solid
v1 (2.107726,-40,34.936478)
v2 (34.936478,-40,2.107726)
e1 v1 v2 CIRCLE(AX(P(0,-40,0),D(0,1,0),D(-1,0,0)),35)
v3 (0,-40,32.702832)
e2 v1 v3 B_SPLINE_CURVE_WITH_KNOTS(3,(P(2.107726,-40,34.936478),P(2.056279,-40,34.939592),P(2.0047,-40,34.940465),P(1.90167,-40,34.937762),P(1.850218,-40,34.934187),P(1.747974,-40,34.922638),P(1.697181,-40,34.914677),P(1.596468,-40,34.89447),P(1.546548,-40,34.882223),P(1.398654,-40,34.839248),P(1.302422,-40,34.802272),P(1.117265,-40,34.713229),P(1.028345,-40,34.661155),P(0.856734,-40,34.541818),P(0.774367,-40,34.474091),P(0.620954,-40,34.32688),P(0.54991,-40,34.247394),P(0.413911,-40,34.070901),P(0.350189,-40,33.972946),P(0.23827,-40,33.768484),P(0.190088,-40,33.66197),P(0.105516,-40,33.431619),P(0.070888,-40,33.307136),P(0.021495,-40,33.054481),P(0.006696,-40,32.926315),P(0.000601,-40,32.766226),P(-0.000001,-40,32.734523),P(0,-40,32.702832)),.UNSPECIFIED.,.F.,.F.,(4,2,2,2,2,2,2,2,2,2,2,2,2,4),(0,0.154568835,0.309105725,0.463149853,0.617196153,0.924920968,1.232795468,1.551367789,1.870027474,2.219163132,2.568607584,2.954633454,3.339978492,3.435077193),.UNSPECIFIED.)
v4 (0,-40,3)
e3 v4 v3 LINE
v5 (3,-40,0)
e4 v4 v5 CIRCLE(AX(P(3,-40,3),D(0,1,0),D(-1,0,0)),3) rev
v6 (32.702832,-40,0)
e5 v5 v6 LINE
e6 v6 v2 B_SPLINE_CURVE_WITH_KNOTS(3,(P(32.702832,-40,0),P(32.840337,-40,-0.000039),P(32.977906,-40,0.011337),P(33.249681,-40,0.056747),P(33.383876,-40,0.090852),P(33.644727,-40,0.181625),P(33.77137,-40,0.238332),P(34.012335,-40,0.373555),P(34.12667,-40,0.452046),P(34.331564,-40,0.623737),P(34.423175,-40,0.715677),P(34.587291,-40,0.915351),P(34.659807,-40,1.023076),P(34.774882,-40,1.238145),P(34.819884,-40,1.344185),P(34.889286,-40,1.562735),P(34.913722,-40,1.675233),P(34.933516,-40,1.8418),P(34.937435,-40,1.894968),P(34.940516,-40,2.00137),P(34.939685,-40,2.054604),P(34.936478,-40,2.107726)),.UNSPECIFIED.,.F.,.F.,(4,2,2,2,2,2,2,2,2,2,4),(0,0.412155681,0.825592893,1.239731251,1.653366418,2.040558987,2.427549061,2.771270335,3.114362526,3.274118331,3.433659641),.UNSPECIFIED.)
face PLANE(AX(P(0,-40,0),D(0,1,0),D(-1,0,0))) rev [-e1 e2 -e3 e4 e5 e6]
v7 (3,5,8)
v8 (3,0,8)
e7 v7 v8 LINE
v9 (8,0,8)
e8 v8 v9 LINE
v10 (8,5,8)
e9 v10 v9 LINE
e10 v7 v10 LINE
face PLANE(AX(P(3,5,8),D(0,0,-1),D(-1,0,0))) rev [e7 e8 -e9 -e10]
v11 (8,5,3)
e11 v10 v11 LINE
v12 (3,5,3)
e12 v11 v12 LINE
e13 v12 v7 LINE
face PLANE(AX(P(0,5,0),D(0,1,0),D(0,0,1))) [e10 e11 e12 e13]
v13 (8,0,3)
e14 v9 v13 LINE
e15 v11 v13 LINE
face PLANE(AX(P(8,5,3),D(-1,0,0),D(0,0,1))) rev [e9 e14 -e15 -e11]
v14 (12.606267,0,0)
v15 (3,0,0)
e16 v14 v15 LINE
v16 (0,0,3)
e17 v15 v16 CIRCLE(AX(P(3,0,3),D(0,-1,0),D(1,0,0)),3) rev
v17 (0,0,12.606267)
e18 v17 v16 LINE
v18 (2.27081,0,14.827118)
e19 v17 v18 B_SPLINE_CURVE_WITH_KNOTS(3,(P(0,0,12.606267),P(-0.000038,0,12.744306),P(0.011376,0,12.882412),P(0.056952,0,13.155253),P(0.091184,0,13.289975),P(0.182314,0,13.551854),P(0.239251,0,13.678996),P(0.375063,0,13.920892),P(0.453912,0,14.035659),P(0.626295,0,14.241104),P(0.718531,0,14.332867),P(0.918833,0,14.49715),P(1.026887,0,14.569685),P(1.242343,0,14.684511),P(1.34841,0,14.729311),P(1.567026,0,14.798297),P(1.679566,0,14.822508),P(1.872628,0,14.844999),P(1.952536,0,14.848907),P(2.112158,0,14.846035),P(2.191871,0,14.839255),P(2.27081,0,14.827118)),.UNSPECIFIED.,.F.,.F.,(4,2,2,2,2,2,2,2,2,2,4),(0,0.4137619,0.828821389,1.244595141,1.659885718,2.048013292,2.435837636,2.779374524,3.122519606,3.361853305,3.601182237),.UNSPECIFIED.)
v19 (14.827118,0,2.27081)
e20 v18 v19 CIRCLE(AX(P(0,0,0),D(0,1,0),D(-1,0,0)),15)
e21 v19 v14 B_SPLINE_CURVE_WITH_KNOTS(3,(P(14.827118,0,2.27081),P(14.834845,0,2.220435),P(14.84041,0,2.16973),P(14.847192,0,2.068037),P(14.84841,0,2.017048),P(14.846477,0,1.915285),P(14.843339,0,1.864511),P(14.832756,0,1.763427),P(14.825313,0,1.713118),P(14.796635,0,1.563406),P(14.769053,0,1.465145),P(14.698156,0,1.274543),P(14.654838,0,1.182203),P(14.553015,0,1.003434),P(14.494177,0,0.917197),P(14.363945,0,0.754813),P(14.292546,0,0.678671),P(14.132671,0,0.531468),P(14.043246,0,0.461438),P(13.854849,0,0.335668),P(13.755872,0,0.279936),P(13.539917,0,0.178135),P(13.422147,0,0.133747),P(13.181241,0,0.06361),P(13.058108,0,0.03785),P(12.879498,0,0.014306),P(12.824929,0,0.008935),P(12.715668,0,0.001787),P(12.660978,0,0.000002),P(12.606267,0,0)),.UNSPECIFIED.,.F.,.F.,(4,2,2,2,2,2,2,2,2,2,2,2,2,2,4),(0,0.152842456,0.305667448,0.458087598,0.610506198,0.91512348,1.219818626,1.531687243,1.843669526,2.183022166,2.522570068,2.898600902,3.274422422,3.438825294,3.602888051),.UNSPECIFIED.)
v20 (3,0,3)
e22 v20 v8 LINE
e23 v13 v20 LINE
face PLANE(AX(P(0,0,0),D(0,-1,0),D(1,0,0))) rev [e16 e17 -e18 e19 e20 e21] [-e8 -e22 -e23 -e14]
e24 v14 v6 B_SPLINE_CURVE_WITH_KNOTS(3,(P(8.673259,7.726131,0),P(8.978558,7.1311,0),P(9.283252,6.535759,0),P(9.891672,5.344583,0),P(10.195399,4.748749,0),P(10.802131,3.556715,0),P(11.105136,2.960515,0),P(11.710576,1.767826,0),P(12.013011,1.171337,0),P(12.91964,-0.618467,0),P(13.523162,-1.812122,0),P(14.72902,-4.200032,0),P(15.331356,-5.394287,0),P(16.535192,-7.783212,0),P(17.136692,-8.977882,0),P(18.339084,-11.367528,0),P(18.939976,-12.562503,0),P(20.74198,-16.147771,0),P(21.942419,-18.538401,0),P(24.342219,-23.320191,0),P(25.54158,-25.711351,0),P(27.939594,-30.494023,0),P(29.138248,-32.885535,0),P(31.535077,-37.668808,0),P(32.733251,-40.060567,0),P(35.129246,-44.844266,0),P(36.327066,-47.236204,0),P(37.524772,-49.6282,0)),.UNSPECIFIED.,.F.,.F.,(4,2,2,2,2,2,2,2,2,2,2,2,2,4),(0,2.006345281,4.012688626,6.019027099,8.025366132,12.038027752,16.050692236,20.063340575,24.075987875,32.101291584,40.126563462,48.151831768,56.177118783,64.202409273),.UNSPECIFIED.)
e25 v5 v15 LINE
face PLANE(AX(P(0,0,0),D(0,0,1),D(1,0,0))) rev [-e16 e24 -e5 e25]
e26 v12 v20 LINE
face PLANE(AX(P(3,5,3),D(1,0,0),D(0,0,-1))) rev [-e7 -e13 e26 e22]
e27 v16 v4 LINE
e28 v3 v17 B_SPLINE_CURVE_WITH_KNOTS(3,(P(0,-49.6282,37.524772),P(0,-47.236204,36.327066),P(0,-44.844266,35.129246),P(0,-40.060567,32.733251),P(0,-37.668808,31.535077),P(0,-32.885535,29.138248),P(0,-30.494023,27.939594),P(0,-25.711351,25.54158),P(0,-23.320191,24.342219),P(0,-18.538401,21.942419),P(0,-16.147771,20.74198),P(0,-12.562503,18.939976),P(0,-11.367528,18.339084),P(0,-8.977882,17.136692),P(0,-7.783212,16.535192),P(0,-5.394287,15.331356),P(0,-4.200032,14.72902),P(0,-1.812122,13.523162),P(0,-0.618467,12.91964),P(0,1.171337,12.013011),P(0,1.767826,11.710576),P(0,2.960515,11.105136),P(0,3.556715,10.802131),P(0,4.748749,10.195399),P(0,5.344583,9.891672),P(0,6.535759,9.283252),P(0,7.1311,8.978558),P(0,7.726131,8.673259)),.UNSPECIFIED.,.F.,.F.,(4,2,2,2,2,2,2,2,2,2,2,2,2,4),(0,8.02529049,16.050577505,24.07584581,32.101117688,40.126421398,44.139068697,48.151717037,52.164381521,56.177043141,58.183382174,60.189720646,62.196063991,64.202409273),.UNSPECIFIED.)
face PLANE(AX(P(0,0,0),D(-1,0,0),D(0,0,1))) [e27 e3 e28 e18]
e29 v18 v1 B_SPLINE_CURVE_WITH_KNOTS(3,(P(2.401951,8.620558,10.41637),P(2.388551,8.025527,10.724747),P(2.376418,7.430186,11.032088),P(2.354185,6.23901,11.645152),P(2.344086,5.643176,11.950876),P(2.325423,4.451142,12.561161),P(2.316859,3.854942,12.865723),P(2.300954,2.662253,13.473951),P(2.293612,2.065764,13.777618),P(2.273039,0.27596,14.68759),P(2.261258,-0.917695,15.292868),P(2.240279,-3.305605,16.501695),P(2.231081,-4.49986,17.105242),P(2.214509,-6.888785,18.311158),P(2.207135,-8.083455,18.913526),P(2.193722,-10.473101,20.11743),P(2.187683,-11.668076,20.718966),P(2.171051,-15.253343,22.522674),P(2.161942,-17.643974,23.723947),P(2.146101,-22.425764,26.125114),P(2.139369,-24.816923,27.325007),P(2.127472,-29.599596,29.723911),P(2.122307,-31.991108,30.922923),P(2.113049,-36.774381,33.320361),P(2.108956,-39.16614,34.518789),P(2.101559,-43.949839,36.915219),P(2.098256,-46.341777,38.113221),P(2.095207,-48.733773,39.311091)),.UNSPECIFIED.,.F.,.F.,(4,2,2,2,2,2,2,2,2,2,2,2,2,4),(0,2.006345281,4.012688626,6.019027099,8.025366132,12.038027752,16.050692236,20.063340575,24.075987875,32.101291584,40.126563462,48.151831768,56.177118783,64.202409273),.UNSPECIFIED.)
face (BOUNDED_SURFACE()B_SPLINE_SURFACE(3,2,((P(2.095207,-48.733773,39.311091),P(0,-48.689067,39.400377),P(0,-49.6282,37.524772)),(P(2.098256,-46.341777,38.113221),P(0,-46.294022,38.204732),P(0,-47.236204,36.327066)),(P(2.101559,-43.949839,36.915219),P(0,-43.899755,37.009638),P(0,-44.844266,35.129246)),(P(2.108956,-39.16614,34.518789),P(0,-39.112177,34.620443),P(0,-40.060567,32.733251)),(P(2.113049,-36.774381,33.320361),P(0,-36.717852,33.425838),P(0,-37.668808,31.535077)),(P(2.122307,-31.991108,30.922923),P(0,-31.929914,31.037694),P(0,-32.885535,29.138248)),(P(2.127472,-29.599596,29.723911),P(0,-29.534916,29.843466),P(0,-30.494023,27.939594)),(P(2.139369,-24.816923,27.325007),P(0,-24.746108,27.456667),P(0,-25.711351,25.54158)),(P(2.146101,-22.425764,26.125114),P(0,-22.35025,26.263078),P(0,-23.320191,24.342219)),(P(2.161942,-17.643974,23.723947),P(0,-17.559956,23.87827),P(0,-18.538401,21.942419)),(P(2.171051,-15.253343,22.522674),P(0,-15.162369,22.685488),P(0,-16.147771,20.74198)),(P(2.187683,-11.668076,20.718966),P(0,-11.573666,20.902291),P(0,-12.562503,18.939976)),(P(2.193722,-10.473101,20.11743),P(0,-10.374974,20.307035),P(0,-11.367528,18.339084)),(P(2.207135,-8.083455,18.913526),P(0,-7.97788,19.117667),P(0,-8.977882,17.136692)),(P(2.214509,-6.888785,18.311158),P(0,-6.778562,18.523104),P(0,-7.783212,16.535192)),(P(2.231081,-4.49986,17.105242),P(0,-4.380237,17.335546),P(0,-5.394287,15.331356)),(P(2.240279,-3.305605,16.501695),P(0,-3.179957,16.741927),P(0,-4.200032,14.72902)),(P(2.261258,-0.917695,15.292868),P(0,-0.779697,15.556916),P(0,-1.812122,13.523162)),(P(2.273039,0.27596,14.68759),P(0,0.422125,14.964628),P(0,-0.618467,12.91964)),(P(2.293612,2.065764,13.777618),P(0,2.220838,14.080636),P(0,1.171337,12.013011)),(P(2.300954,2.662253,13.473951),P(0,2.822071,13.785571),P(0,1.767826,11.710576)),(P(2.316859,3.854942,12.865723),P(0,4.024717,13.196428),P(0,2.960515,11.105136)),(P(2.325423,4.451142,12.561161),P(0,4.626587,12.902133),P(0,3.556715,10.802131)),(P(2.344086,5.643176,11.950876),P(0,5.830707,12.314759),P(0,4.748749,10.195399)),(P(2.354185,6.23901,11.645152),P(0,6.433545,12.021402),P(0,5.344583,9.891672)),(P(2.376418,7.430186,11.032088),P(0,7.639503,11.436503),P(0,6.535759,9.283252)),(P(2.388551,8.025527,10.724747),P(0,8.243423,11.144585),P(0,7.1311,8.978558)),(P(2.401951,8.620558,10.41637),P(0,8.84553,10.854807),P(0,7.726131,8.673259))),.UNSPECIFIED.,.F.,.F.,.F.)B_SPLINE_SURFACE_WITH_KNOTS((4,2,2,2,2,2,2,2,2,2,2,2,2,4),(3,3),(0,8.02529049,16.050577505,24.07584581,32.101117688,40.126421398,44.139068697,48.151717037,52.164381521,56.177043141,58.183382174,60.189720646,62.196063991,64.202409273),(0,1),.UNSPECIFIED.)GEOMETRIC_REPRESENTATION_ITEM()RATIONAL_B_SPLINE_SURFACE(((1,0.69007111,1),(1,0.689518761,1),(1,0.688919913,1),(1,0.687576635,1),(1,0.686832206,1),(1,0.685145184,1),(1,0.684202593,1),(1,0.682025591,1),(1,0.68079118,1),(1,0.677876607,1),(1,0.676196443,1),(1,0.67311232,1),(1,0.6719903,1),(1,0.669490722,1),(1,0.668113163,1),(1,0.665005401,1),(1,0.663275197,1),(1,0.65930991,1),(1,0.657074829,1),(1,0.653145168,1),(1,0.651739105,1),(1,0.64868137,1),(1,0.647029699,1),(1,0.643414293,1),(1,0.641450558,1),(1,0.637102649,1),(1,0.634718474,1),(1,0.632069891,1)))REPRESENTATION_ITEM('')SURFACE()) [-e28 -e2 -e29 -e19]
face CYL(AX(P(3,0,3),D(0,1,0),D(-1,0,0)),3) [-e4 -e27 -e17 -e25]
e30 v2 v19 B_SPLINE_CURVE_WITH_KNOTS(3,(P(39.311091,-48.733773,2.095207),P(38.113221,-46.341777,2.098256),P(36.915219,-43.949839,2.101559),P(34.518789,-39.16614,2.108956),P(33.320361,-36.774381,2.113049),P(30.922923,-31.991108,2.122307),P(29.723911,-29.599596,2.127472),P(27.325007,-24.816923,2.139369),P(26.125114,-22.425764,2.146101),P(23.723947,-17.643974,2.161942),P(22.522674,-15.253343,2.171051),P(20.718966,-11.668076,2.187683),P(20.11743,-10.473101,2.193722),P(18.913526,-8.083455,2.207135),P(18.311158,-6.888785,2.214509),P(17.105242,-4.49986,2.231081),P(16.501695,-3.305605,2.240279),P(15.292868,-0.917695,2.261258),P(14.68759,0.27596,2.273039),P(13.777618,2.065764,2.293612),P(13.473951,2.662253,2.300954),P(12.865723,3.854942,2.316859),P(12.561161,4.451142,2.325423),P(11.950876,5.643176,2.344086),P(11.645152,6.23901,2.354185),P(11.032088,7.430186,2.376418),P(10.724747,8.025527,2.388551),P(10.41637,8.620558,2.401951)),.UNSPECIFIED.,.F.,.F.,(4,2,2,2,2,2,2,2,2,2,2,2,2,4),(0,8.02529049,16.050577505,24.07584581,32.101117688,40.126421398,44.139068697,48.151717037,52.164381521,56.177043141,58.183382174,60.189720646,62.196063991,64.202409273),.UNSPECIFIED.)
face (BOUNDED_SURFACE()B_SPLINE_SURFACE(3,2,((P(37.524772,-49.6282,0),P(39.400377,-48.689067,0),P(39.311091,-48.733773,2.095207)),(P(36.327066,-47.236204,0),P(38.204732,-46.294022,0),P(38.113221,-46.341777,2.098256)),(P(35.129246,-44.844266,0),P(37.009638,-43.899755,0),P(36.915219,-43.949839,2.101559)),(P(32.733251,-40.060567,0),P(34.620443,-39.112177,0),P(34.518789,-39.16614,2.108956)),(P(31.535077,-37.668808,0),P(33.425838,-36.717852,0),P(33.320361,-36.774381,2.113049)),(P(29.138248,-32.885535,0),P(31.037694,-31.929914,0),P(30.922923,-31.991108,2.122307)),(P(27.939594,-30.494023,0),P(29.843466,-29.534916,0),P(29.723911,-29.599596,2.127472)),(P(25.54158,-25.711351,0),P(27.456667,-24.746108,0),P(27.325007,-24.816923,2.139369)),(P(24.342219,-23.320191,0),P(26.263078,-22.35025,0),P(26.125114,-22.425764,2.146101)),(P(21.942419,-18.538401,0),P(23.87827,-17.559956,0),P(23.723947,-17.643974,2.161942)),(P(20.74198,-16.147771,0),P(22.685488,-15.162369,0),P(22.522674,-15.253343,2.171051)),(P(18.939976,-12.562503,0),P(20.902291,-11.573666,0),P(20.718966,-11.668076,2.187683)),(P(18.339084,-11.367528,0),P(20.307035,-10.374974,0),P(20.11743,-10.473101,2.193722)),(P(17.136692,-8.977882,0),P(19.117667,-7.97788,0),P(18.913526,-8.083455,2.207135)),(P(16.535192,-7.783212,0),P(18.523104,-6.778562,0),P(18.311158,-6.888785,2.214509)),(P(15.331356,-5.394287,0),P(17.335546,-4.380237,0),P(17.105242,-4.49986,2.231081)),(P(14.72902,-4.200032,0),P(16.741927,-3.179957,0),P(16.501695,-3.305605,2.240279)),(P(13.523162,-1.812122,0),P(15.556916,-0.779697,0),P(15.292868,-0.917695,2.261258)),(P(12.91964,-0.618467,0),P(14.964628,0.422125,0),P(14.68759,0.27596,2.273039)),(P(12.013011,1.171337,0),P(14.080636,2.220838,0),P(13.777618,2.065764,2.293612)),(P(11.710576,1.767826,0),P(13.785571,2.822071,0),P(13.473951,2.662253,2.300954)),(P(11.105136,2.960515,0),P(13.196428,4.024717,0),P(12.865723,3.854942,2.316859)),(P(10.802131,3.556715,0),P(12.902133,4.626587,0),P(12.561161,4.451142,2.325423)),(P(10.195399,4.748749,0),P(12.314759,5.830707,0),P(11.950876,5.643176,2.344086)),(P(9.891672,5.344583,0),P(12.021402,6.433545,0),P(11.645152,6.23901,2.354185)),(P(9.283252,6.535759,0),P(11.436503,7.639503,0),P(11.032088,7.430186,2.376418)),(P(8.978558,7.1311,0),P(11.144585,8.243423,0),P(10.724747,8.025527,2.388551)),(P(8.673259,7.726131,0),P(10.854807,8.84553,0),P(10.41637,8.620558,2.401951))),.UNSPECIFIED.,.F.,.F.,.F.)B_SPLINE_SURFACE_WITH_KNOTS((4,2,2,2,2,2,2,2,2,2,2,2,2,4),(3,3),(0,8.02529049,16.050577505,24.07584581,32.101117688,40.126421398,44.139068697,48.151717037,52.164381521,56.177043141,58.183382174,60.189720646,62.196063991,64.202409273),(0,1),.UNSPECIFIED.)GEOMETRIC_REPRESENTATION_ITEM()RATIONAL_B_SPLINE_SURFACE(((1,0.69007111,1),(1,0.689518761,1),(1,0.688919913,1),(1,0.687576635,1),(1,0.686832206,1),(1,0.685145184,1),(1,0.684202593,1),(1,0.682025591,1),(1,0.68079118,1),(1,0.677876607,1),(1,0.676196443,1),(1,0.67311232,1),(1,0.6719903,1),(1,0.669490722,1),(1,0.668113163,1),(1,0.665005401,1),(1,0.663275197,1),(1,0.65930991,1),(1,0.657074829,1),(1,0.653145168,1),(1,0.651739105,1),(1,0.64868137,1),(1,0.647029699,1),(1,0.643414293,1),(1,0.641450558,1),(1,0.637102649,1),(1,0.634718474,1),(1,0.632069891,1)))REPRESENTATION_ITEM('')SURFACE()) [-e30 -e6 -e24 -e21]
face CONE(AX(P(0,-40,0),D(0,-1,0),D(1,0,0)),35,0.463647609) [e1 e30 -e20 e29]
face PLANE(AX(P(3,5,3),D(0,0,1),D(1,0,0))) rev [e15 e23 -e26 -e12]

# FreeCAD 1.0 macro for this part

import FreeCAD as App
import Part
import Sketcher
from FreeCAD import Vector


def edges_at(feature, points):
    """Names of the edges that pass closest to the given points."""
    edges = feature.Shape.Edges
    near = lambda p: min(range(len(edges)), key=lambda i: edges[i].distToShape(Part.Vertex(*p))[0])
    return sorted({f"Edge{near(p) + 1}" for p in points})


def add_polygon(sketch, points):
    """Adds a closed chain of lines whose ends are joined by coincident constraints."""
    first, n = sketch.GeometryCount, len(points)
    for a, b in zip(points, points[1:] + points[:1]):
        sketch.addGeometry(Part.LineSegment(App.Vector(*a, 0), App.Vector(*b, 0)), False)
    for i in range(n):
        sketch.addConstraint(Sketcher.Constraint("Coincident", first + i, 2, first + (i + 1) % n, 1))

doc = App.newDocument("Part")
body = doc.addObject("PartDesign::Body", "Body")

sketch1 = body.newObject("Sketcher::SketchObject", "Sketch")
sketch1.AttachmentSupport = (doc.getObject("XY_Plane"), [""])
sketch1.MapMode = "FlatFace"
add_polygon(sketch1, [(15, 0), (0, 0), (0, -40), (35, -40)])
sketch1.addConstraint(Sketcher.Constraint("Horizontal", 0))
sketch1.addConstraint(Sketcher.Constraint("Vertical", 1))
sketch1.addConstraint(Sketcher.Constraint("Horizontal", 2))
sketch1.addConstraint(Sketcher.Constraint("Coincident", 0, 2, -1, 1))
sketch1.addConstraint(Sketcher.Constraint("DistanceX", 0, 2, 0, 1, 15.0))
sketch1.addConstraint(Sketcher.Constraint("DistanceX", 2, 1, 2, 2, 35.0))
sketch1.addConstraint(Sketcher.Constraint("DistanceY", 1, 2, 1, 1, 40.0))
revolution = body.newObject("PartDesign::Revolution", "Revolution")
revolution.Profile = sketch1
revolution.ReferenceAxis = (sketch1, ["V_Axis"])
revolution.Angle = 90
revolution.Reversed = True
doc.recompute()

fillet = body.newObject("PartDesign::Fillet", "Fillet")
fillet.Base = (revolution, edges_at(revolution, [(0, -20, 25)]))
fillet.Radius = 2
doc.recompute()

fillet2 = body.newObject("PartDesign::Fillet", "Fillet001")
fillet2.Base = (fillet, edges_at(fillet, [(25, -20, 0)]))
fillet2.Radius = 2
doc.recompute()

fillet3 = body.newObject("PartDesign::Fillet", "Fillet002")
fillet3.Base = (fillet2, edges_at(fillet2, [(0, -20, 0)]))
fillet3.Radius = 3

sketch2 = body.newObject("Sketcher::SketchObject", "Sketch001")
sketch2.AttachmentSupport = (doc.getObject("XZ_Plane"), [""])
sketch2.MapMode = "FlatFace"
add_polygon(sketch2, [(3, 3), (3, 8), (8, 8), (8, 3)])
sketch2.addConstraint(Sketcher.Constraint("Vertical", 0))
sketch2.addConstraint(Sketcher.Constraint("Horizontal", 1))
sketch2.addConstraint(Sketcher.Constraint("Vertical", 2))
sketch2.addConstraint(Sketcher.Constraint("Horizontal", 3))
sketch2.addConstraint(Sketcher.Constraint("Equal", 3, 0))
sketch2.addConstraint(Sketcher.Constraint("DistanceX", 1, 1, 1, 2, 5.0))
sketch2.addConstraint(Sketcher.Constraint("DistanceX", -1, 1, 0, 2, 3.0))
sketch2.addConstraint(Sketcher.Constraint("DistanceY", -1, 1, 0, 2, 8.0))
pad1 = body.newObject("PartDesign::Pad", "Pad")
pad1.Profile = sketch2
pad1.Length = 5
pad1.Reversed = True

doc.recompute()
